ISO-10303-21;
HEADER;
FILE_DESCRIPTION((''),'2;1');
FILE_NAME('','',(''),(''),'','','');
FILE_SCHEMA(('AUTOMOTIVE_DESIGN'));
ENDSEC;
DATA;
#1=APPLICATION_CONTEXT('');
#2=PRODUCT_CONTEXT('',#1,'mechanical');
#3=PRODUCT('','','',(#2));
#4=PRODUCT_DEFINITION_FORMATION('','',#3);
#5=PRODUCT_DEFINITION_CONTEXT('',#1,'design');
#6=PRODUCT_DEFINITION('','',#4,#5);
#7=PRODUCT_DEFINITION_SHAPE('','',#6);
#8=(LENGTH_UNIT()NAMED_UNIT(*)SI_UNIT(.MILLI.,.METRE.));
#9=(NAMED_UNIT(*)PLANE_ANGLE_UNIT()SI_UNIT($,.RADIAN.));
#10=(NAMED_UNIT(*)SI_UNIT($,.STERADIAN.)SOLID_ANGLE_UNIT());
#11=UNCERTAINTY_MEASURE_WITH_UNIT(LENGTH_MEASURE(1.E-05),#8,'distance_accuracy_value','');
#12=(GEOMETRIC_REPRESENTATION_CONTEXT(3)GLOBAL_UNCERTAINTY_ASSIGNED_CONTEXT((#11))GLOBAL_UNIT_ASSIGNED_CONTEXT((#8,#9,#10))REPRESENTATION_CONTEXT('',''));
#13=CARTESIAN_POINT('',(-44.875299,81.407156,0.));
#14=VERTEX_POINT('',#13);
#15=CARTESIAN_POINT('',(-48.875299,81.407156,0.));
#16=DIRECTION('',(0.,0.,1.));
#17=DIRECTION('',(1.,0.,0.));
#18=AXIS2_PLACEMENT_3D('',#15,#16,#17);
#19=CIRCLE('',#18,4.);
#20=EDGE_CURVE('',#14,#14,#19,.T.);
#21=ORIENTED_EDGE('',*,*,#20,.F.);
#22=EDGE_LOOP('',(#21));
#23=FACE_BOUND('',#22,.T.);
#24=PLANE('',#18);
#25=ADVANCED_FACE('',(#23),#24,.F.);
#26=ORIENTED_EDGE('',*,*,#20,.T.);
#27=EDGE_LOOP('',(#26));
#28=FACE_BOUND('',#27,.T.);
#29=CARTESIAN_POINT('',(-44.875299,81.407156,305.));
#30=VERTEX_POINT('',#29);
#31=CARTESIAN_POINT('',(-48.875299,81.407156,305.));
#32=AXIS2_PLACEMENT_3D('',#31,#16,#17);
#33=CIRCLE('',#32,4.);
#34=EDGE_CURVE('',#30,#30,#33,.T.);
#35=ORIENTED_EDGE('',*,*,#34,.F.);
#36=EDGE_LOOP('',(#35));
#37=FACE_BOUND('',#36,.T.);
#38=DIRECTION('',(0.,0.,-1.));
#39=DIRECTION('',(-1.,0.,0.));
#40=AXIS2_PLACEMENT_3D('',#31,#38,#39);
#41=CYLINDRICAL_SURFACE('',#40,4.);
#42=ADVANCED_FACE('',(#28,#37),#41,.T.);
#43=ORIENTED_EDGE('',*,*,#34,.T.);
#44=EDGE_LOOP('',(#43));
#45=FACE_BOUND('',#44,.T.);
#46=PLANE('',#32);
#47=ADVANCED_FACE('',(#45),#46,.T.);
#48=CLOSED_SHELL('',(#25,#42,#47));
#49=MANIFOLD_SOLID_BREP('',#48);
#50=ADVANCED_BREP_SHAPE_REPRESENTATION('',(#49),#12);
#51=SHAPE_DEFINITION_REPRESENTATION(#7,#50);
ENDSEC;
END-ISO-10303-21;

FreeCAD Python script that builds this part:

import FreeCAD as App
import Part
import Sketcher
from FreeCAD import Vector
Q = App.Units.Quantity

doc = App.newDocument("Part")
body = doc.addObject("PartDesign::Body", "Body")

# Sketch on XY plane
sketch1 = body.newObject("Sketcher::SketchObject", "Sketch")
sketch1.AttachmentSupport = (doc.getObject("XY_Plane"), [""])
sketch1.MapMode = "FlatFace"
sketch1.addGeometry(Part.Circle(Vector(-48.9, 81.4, 0), Vector(0, 0, 1), 4), False)
sketch1.addConstraint([
    Sketcher.Constraint("Diameter", 0, Q("8 mm")),
    Sketcher.Constraint("DistanceX", 0, 3, -1, 1, Q("48.875299 mm")),
    Sketcher.Constraint("DistanceY", -1, 1, 0, 3, Q("81.407156 mm")),
])
pad1 = body.newObject("PartDesign::Pad", "Pad")
pad1.Profile = sketch1
pad1.Length = 305

doc.recompute()
